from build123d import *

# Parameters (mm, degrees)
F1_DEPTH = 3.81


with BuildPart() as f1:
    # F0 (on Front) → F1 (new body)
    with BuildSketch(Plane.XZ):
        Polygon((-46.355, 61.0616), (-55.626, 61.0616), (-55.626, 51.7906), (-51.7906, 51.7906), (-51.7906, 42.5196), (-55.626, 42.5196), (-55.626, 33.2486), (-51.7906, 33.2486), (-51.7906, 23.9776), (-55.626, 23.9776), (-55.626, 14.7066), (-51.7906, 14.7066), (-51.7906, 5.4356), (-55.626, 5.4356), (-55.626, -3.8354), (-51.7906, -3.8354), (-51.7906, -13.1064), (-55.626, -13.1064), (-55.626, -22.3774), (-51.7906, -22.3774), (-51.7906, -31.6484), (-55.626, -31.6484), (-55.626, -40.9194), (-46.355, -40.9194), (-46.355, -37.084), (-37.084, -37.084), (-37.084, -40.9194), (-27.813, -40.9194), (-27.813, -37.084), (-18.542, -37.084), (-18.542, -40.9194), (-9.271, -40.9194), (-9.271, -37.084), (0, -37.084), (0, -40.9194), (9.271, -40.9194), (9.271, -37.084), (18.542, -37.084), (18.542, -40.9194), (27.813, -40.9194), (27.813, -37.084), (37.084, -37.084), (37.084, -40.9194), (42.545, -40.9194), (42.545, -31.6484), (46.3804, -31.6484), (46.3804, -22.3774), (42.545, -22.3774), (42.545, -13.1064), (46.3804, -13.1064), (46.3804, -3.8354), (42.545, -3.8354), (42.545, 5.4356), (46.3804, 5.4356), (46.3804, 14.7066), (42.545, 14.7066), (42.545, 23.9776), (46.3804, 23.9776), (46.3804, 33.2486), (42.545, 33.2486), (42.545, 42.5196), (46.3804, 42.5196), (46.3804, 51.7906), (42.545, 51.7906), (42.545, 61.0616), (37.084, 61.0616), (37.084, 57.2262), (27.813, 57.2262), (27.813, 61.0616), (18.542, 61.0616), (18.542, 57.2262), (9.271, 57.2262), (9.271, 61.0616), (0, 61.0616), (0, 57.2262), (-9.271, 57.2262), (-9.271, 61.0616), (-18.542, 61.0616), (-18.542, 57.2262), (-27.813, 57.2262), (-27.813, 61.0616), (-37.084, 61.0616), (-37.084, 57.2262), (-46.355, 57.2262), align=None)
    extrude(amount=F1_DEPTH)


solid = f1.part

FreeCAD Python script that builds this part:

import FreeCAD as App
import Part
import Sketcher
from FreeCAD import Vector
Q = App.Units.Quantity


def add_polygon(sketch, points):
    """Adds a closed chain of lines whose ends are joined by coincident constraints."""
    first, n = sketch.GeometryCount, len(points)
    for a, b in zip(points, points[1:] + points[:1]):
        sketch.addGeometry(Part.LineSegment(App.Vector(*a, 0), App.Vector(*b, 0)), False)
    for i in range(n):
        sketch.addConstraint(Sketcher.Constraint("Coincident", first + i, 2, first + (i + 1) % n, 1))

doc = App.newDocument("Part")
params = doc.addObject("Spreadsheet::Sheet", "Params")
for row, (alias, value) in enumerate([
    ("sketch1_width", "0.365 in"),
    ("sketch1_width2", "0.151 in"),
    ("sketch1_width3", "0.215 in"),
    ("pad1_length", "0.15 in"),
], start=1):
    params.set(f"A{row}", alias)
    params.set(f"B{row}", "=" + value)
    params.setAlias(f"B{row}", alias)

body = doc.addObject("PartDesign::Body", "Body")

# Sketch on XZ plane
sketch1 = body.newObject("Sketcher::SketchObject", "Sketch")
sketch1.AttachmentSupport = (doc.getObject("XZ_Plane"), [""])
sketch1.MapMode = "FlatFace"
add_polygon(sketch1, [(-46.355, 61.0616), (-55.626, 61.0616), (-55.626, 51.7906), (-51.7906, 51.7906), (-51.7906, 42.5196), (-55.626, 42.5196), (-55.626, 33.2486), (-51.7906, 33.2486), (-51.7906, 23.9776), (-55.626, 23.9776), (-55.626, 14.7066), (-51.7906, 14.7066), (-51.7906, 5.4356), (-55.626, 5.4356), (-55.626, -3.8354), (-51.7906, -3.8354), (-51.7906, -13.1064), (-55.626, -13.1064), (-55.626, -22.3774), (-51.7906, -22.3774), (-51.7906, -31.6484), (-55.626, -31.6484), (-55.626, -40.9194), (-46.355, -40.9194), (-46.355, -37.084), (-37.084, -37.084), (-37.084, -40.9194), (-27.813, -40.9194), (-27.813, -37.084), (-18.542, -37.084), (-18.542, -40.9194), (-9.271, -40.9194), (-9.271, -37.084), (0, -37.084), (0, -40.9194), (9.271, -40.9194), (9.271, -37.084), (18.542, -37.084), (18.542, -40.9194), (27.813, -40.9194), (27.813, -37.084), (37.084, -37.084), (37.084, -40.9194), (42.545, -40.9194), (42.545, -31.6484), (46.3804, -31.6484), (46.3804, -22.3774), (42.545, -22.3774), (42.545, -13.1064), (46.3804, -13.1064), (46.3804, -3.8354), (42.545, -3.8354), (42.545, 5.4356), (46.3804, 5.4356), (46.3804, 14.7066), (42.545, 14.7066), (42.545, 23.9776), (46.3804, 23.9776), (46.3804, 33.2486), (42.545, 33.2486), (42.545, 42.5196), (46.3804, 42.5196), (46.3804, 51.7906), (42.545, 51.7906), (42.545, 61.0616), (37.084, 61.0616), (37.084, 57.2262), (27.813, 57.2262), (27.813, 61.0616), (18.542, 61.0616), (18.542, 57.2262), (9.271, 57.2262), (9.271, 61.0616), (0, 61.0616), (0, 57.2262), (-9.271, 57.2262), (-9.271, 61.0616), (-18.542, 61.0616), (-18.542, 57.2262), (-27.813, 57.2262), (-27.813, 61.0616), (-37.084, 61.0616), (-37.084, 57.2262), (-46.355, 57.2262)])  # lines 0-83
sketch1.addConstraint([
    Sketcher.Constraint("Horizontal", 0),
    Sketcher.Constraint("Vertical", 1),
    Sketcher.Constraint("Horizontal", 2),
    Sketcher.Constraint("Vertical", 3),
    Sketcher.Constraint("Horizontal", 4),
    Sketcher.Constraint("Vertical", 5),
    Sketcher.Constraint("Horizontal", 6),
    Sketcher.Constraint("Vertical", 7),
    Sketcher.Constraint("Horizontal", 8),
    Sketcher.Constraint("Vertical", 9),
    Sketcher.Constraint("Horizontal", 10),
    Sketcher.Constraint("Vertical", 11),
    Sketcher.Constraint("Horizontal", 12),
    Sketcher.Constraint("Vertical", 13),
    Sketcher.Constraint("Horizontal", 14),
    Sketcher.Constraint("Vertical", 15),
    Sketcher.Constraint("Horizontal", 16),
    Sketcher.Constraint("Vertical", 17),
    Sketcher.Constraint("Horizontal", 18),
    Sketcher.Constraint("Vertical", 19),
    Sketcher.Constraint("Horizontal", 20),
    Sketcher.Constraint("Vertical", 21),
    Sketcher.Constraint("Horizontal", 22),
    Sketcher.Constraint("Vertical", 23),
    Sketcher.Constraint("Horizontal", 24),
    Sketcher.Constraint("Vertical", 25),
    Sketcher.Constraint("Horizontal", 26),
    Sketcher.Constraint("Vertical", 27),
    Sketcher.Constraint("Horizontal", 28),
    Sketcher.Constraint("Vertical", 29),
    Sketcher.Constraint("Horizontal", 30),
    Sketcher.Constraint("Vertical", 31),
    Sketcher.Constraint("Horizontal", 32),
    Sketcher.Constraint("Vertical", 33),
    Sketcher.Constraint("Horizontal", 34),
    Sketcher.Constraint("Vertical", 35),
    Sketcher.Constraint("Horizontal", 36),
    Sketcher.Constraint("Vertical", 37),
    Sketcher.Constraint("Horizontal", 38),
    Sketcher.Constraint("Vertical", 39),
    Sketcher.Constraint("Horizontal", 40),
    Sketcher.Constraint("Vertical", 41),
    Sketcher.Constraint("Horizontal", 42),
    Sketcher.Constraint("Vertical", 43),
    Sketcher.Constraint("Horizontal", 44),
    Sketcher.Constraint("Vertical", 45),
    Sketcher.Constraint("Horizontal", 46),
    Sketcher.Constraint("Vertical", 47),
    Sketcher.Constraint("Horizontal", 48),
    Sketcher.Constraint("Vertical", 49),
    Sketcher.Constraint("Horizontal", 50),
    Sketcher.Constraint("Vertical", 51),
    Sketcher.Constraint("Horizontal", 52),
    Sketcher.Constraint("Vertical", 53),
    Sketcher.Constraint("Horizontal", 54),
    Sketcher.Constraint("Vertical", 55),
    Sketcher.Constraint("Horizontal", 56),
    Sketcher.Constraint("Vertical", 57),
    Sketcher.Constraint("Horizontal", 58),
    Sketcher.Constraint("Vertical", 59),
    Sketcher.Constraint("Horizontal", 60),
    Sketcher.Constraint("Vertical", 61),
    Sketcher.Constraint("Horizontal", 62),
    Sketcher.Constraint("Vertical", 63),
    Sketcher.Constraint("Horizontal", 64),
    Sketcher.Constraint("Vertical", 65),
    Sketcher.Constraint("Horizontal", 66),
    Sketcher.Constraint("Vertical", 67),
    Sketcher.Constraint("Horizontal", 68),
    Sketcher.Constraint("Vertical", 69),
    Sketcher.Constraint("Horizontal", 70),
    Sketcher.Constraint("Vertical", 71),
    Sketcher.Constraint("Horizontal", 72),
    Sketcher.Constraint("Vertical", 73),
    Sketcher.Constraint("Horizontal", 74),
    Sketcher.Constraint("Vertical", 75),
    Sketcher.Constraint("Horizontal", 76),
    Sketcher.Constraint("Vertical", 77),
    Sketcher.Constraint("Horizontal", 78),
    Sketcher.Constraint("Vertical", 79),
    Sketcher.Constraint("Horizontal", 80),
    Sketcher.Constraint("Vertical", 81),
    Sketcher.Constraint("Horizontal", 82),
    Sketcher.Constraint("Vertical", 83),
    Sketcher.Constraint("Symmetric", 30, 2, 34, 2, -2),
    Sketcher.Constraint("Symmetric", 28, 2, 36, 2, -2),
    Sketcher.Constraint("Symmetric", 26, 2, 38, 2, -2),
    Sketcher.Constraint("Symmetric", 24, 2, 40, 2, -2),
    Sketcher.Constraint("Symmetric", 70, 2, 74, 2, -2),
    Sketcher.Constraint("Symmetric", 68, 2, 76, 2, -2),
    Sketcher.Constraint("Symmetric", 66, 2, 78, 2, -2),
    Sketcher.Constraint("Symmetric", 64, 2, 80, 2, -2),
    Sketcher.Constraint("PointOnObject", 32, 2, -2),
    Sketcher.Constraint("PointOnObject", 72, 2, -2),
    Sketcher.Constraint("Horizontal", 22, 2, 25, 2),
    Sketcher.Constraint("Horizontal", 24, 2, 27, 2),
    Sketcher.Constraint("Horizontal", 26, 2, 29, 2),
    Sketcher.Constraint("Horizontal", 28, 2, 31, 2),
    Sketcher.Constraint("Horizontal", 38, 2, 41, 2),
    Sketcher.Constraint("Horizontal", 20, 2, 43, 2),
    Sketcher.Constraint("Horizontal", 18, 2, 45, 2),
    Sketcher.Constraint("Horizontal", 16, 2, 47, 2),
    Sketcher.Constraint("Horizontal", 14, 2, 49, 2),
    Sketcher.Constraint("Horizontal", 12, 2, 51, 2),
    Sketcher.Constraint("Horizontal", 10, 2, 53, 2),
    Sketcher.Constraint("Horizontal", 8, 2, 55, 2),
    Sketcher.Constraint("Horizontal", 6, 2, 57, 2),
    Sketcher.Constraint("Horizontal", 4, 2, 59, 2),
    Sketcher.Constraint("Horizontal", 2, 2, 61, 2),
    Sketcher.Constraint("Horizontal", 0, 2, 63, 2),
    Sketcher.Constraint("Horizontal", 64, 2, 67, 2),
    Sketcher.Constraint("Horizontal", 66, 2, 69, 2),
    Sketcher.Constraint("Horizontal", 68, 2, 71, 2),
    Sketcher.Constraint("Horizontal", 78, 2, 81, 2),
    Sketcher.Constraint("Vertical", 1, 2, 4, 2),
    Sketcher.Constraint("Vertical", 3, 2, 6, 2),
    Sketcher.Constraint("Vertical", 5, 2, 8, 2),
    Sketcher.Constraint("Vertical", 7, 2, 10, 2),
    Sketcher.Constraint("Vertical", 9, 2, 12, 2),
    Sketcher.Constraint("Vertical", 11, 2, 14, 2),
    Sketcher.Constraint("Vertical", 13, 2, 16, 2),
    Sketcher.Constraint("Vertical", 15, 2, 18, 2),
    Sketcher.Constraint("Vertical", 17, 2, 20, 2),
    Sketcher.Constraint("Vertical", 43, 2, 46, 2),
    Sketcher.Constraint("Vertical", 45, 2, 48, 2),
    Sketcher.Constraint("Vertical", 47, 2, 50, 2),
    Sketcher.Constraint("Vertical", 49, 2, 52, 2),
    Sketcher.Constraint("Vertical", 51, 2, 54, 2),
    Sketcher.Constraint("Vertical", 53, 2, 56, 2),
    Sketcher.Constraint("Vertical", 55, 2, 58, 2),
    Sketcher.Constraint("Vertical", 57, 2, 60, 2),
    Sketcher.Constraint("Vertical", 59, 2, 62, 2),
    Sketcher.Constraint("Vertical", 41, 2, 64, 2),
    Sketcher.Constraint("Vertical", 39, 2, 66, 2),
    Sketcher.Constraint("Vertical", 37, 2, 68, 2),
    Sketcher.Constraint("Vertical", 35, 2, 70, 2),
    Sketcher.Constraint("Vertical", 23, 2, 82, 2),
    Sketcher.Constraint("Equal", 22, 24),
    Sketcher.Constraint("Equal", 24, 26),
    Sketcher.Constraint("Equal", 26, 28),
    Sketcher.Constraint("Equal", 28, 30),
    Sketcher.Constraint("Equal", 30, 32),
    Sketcher.Constraint("Equal", 20, 44),
    Sketcher.Constraint("Equal", 82, 1),
    Sketcher.Constraint("Equal", 1, 3),
    Sketcher.Constraint("Equal", 3, 5),
    Sketcher.Constraint("Equal", 5, 7),
    Sketcher.Constraint("Equal", 7, 9),
    Sketcher.Constraint("Equal", 9, 11),
    Sketcher.Constraint("Equal", 11, 13),
    Sketcher.Constraint("Equal", 13, 15),
    Sketcher.Constraint("Equal", 15, 17),
    Sketcher.Constraint("Equal", 17, 19),
    Sketcher.Constraint("Equal", 19, 21),
    Sketcher.Constraint("Equal", 62, 23),
    Sketcher.Constraint("Equal", 41, 65),
    Sketcher.Constraint("DistanceX", 0, 2, 0, 1, Q("0.365 in")),
    Sketcher.Constraint("DistanceX", 2, 1, 2, 2, Q("0.151 in")),
    Sketcher.Constraint("DistanceX", 42, 1, 42, 2, Q("0.215 in")),
    Sketcher.Constraint("DistanceY", 23, 2, -1, 1, Q("1.46 in")),
])
sketch1.setExpression("Constraints[240]", "Params.sketch1_width")
sketch1.setExpression("Constraints[241]", "Params.sketch1_width2")
sketch1.setExpression("Constraints[242]", "Params.sketch1_width3")
pad1 = body.newObject("PartDesign::Pad", "Pad")
pad1.Profile = sketch1
pad1.setExpression("Length", "Params.pad1_length")

doc.recompute()
